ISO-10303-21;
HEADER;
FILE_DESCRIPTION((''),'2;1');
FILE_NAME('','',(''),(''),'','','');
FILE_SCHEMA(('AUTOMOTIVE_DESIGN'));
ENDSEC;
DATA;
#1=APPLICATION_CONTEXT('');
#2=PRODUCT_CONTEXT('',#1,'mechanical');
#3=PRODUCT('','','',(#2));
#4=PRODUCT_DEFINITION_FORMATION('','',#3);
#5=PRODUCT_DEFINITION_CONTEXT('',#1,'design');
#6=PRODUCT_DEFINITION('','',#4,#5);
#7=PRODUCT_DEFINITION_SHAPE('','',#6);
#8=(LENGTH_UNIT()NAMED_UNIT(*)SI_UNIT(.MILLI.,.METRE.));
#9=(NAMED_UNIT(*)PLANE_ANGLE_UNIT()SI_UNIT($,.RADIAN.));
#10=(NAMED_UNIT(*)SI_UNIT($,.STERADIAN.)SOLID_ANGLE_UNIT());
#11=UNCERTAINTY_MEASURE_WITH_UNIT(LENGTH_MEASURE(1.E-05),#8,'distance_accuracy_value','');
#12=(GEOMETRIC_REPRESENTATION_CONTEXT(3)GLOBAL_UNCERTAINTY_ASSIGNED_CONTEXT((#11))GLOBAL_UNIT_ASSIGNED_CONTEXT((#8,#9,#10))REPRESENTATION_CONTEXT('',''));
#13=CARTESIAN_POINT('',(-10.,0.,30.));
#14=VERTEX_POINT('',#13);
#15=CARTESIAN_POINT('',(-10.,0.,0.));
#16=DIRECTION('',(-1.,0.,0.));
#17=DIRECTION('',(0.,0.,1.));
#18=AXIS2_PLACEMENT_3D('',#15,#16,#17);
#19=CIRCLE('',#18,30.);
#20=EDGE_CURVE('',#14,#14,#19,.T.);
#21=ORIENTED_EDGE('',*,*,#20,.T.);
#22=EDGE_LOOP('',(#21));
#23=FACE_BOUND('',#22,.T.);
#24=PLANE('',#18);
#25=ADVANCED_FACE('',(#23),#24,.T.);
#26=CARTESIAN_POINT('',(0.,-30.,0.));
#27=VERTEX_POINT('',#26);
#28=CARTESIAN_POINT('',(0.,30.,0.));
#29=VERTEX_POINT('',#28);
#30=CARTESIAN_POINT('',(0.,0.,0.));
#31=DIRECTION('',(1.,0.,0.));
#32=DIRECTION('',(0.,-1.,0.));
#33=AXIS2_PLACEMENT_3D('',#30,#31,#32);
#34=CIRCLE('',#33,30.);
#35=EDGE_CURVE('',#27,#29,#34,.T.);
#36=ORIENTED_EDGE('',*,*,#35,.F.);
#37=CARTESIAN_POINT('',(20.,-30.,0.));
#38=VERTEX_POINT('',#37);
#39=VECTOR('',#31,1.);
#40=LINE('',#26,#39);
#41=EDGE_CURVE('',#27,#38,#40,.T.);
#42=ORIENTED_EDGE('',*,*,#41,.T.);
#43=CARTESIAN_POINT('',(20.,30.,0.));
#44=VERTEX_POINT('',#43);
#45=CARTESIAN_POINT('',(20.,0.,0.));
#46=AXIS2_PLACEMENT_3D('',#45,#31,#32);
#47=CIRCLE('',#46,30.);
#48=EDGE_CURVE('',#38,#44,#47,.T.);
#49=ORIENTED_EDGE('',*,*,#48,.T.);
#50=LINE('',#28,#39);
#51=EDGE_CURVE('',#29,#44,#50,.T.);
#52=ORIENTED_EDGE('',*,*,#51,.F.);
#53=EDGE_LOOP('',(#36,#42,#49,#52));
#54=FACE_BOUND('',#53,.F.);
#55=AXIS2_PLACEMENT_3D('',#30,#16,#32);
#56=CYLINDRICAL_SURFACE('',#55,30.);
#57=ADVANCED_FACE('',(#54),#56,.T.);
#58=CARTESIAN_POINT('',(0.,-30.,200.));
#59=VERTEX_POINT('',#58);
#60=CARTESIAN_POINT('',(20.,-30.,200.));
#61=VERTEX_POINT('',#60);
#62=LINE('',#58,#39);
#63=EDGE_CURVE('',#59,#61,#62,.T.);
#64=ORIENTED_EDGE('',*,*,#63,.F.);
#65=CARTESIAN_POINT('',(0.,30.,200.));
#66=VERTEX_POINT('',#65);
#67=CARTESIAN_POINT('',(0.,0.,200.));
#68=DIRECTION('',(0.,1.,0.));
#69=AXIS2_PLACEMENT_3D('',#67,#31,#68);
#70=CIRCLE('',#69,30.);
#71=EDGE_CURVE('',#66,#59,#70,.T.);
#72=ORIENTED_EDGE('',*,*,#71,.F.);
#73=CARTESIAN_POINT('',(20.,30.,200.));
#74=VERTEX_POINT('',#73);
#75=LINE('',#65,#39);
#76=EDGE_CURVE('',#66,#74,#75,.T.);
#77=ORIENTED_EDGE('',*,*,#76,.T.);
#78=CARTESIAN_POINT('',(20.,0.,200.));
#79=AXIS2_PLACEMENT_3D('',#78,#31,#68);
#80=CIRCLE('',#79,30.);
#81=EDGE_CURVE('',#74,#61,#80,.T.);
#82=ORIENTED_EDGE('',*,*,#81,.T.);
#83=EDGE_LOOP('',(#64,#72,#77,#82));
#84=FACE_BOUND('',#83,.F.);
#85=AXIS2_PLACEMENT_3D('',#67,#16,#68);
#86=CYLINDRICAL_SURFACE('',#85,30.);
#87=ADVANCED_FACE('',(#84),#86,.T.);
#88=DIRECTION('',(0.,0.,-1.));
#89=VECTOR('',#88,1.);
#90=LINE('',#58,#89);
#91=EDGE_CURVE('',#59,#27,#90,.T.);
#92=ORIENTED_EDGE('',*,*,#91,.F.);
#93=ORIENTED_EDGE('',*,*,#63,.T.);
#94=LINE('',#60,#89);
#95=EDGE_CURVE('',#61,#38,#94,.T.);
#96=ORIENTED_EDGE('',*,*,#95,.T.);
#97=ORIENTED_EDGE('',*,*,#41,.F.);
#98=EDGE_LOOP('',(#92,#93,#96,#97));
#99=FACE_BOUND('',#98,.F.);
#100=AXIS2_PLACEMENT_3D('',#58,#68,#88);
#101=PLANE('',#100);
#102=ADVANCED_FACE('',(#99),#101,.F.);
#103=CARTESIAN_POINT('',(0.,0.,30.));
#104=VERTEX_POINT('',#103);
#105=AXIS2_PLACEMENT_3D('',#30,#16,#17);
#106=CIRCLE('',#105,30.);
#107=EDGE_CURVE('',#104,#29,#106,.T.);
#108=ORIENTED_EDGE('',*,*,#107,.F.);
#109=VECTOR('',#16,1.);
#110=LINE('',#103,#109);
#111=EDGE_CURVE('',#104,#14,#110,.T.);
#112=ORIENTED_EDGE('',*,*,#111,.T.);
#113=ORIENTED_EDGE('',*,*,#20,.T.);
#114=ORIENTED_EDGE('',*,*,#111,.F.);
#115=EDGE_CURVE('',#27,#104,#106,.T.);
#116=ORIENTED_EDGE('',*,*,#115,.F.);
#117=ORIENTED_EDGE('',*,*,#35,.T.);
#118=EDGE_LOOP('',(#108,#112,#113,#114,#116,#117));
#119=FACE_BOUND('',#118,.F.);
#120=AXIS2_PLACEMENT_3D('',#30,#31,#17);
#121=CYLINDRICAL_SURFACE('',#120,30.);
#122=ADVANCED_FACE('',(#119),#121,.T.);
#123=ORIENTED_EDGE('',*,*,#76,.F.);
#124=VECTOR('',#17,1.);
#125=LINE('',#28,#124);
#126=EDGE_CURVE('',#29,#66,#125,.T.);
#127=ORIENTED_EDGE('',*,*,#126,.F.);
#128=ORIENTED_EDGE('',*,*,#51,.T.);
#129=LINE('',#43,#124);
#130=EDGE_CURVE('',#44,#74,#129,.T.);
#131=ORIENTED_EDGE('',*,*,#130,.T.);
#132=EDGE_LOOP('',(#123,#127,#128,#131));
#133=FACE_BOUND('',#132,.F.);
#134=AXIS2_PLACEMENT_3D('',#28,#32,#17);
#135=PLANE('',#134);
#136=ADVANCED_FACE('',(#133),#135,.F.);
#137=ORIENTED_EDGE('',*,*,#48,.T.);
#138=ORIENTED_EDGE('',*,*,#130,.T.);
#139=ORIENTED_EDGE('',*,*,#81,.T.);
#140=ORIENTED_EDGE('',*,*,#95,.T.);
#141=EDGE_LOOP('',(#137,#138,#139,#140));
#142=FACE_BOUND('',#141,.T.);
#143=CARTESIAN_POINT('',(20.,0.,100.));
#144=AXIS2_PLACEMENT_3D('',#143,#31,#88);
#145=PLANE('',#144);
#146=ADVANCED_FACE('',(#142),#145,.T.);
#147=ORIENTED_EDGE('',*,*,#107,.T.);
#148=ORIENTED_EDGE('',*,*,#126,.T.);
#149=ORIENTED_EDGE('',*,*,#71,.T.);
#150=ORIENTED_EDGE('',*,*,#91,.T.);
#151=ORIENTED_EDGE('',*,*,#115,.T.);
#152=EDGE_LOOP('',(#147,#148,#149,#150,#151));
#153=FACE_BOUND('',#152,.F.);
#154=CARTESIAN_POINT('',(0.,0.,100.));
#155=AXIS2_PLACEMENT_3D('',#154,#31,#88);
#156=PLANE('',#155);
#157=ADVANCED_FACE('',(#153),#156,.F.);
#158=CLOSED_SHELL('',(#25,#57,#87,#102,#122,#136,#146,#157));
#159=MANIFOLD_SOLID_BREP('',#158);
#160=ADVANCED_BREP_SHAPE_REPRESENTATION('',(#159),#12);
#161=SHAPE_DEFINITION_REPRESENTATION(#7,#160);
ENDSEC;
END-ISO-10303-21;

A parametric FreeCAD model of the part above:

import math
import FreeCAD as App
import Part
import Sketcher

doc = App.newDocument("Part")
body = doc.addObject("PartDesign::Body", "Body")

# Sketch on YZ plane
sketch1 = body.newObject("Sketcher::SketchObject", "Sketch")
sketch1.AttachmentSupport = (doc.getObject("YZ_Plane"), [""])
sketch1.MapMode = "FlatFace"
sketch1.addGeometry(Part.LineSegment(App.Vector(30, 0, 0), App.Vector(30, 200, 0)), False)
sketch1.addGeometry(Part.ArcOfCircle(Part.Circle(App.Vector(0, 200, 0), App.Vector(0, 0, 1), 30), math.radians(0), math.radians(180)), False)
sketch1.addGeometry(Part.LineSegment(App.Vector(-30, 200, 0), App.Vector(-30, 0, 0)), False)
sketch1.addGeometry(Part.ArcOfCircle(Part.Circle(App.Vector(0, 0, 0), App.Vector(0, 0, 1), 30), math.radians(180), math.radians(360)), False)
sketch1.addConstraint(Sketcher.Constraint("Tangent", 0, 2, 1, 1))
sketch1.addConstraint(Sketcher.Constraint("Tangent", 1, 2, 2, 1))
sketch1.addConstraint(Sketcher.Constraint("Tangent", 2, 2, 3, 1))
sketch1.addConstraint(Sketcher.Constraint("Tangent", 3, 2, 0, 1))
sketch1.addConstraint(Sketcher.Constraint("Vertical", 0))
sketch1.addConstraint(Sketcher.Constraint("Vertical", 2))
sketch1.addConstraint(Sketcher.Constraint("Coincident", 3, 3, -1, 1))
sketch1.addConstraint(Sketcher.Constraint("Radius", 1, 30.0))
sketch1.addConstraint(Sketcher.Constraint("DistanceY", 0, 1, 0, 2, 200.0))
pad1 = body.newObject("PartDesign::Pad", "Pad")
pad1.Profile = sketch1
pad1.Length = 20

# Sketch on YZ plane
sketch2 = body.newObject("Sketcher::SketchObject", "Sketch001")
sketch2.AttachmentSupport = (doc.getObject("YZ_Plane"), [""])
sketch2.MapMode = "FlatFace"
sketch2.addGeometry(Part.Circle(App.Vector(0, 0, 0), App.Vector(0, 0, 1), 30), False)
sketch2.addConstraint(Sketcher.Constraint("Coincident", 0, 3, -1, 1))
sketch2.addConstraint(Sketcher.Constraint("Diameter", 0, 60.0))
pad2 = body.newObject("PartDesign::Pad", "Pad001")
pad2.Profile = sketch2
pad2.Length = 10
pad2.Reversed = True

doc.recompute()
